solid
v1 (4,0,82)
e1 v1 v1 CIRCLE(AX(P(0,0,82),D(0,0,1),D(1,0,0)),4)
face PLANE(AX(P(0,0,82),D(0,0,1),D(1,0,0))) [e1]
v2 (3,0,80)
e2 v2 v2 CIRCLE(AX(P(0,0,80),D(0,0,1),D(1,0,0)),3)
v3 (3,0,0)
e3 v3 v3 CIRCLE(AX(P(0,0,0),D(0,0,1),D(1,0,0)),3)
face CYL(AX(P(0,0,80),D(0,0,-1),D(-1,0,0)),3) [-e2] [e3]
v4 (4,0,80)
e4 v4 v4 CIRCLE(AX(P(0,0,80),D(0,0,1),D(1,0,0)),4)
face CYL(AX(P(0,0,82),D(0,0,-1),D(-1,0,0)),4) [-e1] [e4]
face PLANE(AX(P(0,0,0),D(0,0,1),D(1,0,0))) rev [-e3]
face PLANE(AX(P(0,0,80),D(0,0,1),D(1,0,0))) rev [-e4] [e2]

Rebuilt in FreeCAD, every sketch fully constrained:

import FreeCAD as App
import Part
import Sketcher
from FreeCAD import Vector

doc = App.newDocument("Part")
body = doc.addObject("PartDesign::Body", "Body")

sketch1 = body.newObject("Sketcher::SketchObject", "Sketch")
sketch1.AttachmentSupport = (doc.getObject("XY_Plane"), [""])
sketch1.MapMode = "FlatFace"
sketch1.addGeometry(Part.Circle(Vector(0, 0, 0), Vector(0, 0, 1), 3), False)
sketch1.addConstraint([
    Sketcher.Constraint("Coincident", 0, 3, -1, 1),
    Sketcher.Constraint("Diameter", 0, 6.0),
])
pad1 = body.newObject("PartDesign::Pad", "Pad")
pad1.Profile = sketch1
pad1.Length = 80

sketch2 = body.newObject("Sketcher::SketchObject", "Sketch001")
sketch2.AttachmentSupport = (doc.getObject("XY_Plane"), [""])
sketch2.MapMode = "FlatFace"
sketch2.AttachmentOffset = App.Placement(Vector(0, 0, 80), App.Rotation())
sketch2.addGeometry(Part.Circle(Vector(0, 0, 0), Vector(0, 0, 1), 4), False)
sketch2.addConstraint([
    Sketcher.Constraint("Coincident", 0, 3, -1, 1),
    Sketcher.Constraint("Diameter", 0, 8.0),
])
pad2 = body.newObject("PartDesign::Pad", "Pad001")
pad2.Profile = sketch2
pad2.Length = 2

doc.recompute()
